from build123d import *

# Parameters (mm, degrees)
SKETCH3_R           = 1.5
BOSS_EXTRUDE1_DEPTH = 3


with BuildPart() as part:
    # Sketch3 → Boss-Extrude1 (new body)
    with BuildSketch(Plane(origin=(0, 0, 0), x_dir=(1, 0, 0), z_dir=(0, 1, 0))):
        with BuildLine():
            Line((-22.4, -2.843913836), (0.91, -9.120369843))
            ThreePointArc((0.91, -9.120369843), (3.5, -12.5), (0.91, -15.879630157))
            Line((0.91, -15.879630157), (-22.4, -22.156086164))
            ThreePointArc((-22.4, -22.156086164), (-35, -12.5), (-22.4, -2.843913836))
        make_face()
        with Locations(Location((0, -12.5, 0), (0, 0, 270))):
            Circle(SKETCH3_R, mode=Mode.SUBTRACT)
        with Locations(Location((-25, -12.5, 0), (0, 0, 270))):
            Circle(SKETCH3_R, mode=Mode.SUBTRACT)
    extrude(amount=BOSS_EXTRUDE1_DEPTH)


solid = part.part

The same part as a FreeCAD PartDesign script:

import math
import FreeCAD as App
import Part
import Sketcher
Q = App.Units.Quantity

doc = App.newDocument("Part")
body = doc.addObject("PartDesign::Body", "Body")

# Sketch on XZ plane
sketch1 = doc.addObject("Sketcher::SketchObject", "Sketch")
body.addObject(sketch1)
sketch1.AttachmentSupport = (doc.XZ_Plane, [""])
sketch1.MapMode = "FlatFace"
sketch1.addGeometry([
    Part.LineSegment(App.Vector(0.9, 9.1, 0), App.Vector(-22.4, 2.8, 0)),  # 0
    Part.ArcOfCircle(Part.Circle(App.Vector(-25, 12.5, 0), App.Vector(0, 0, 1), 10), math.radians(75), math.radians(285)),  # 1
    Part.LineSegment(App.Vector(-22.4, 22.2, 0), App.Vector(0.9, 15.9, 0)),  # 2
    Part.ArcOfCircle(Part.Circle(App.Vector(0, 12.5, 0), App.Vector(0, 0, 1), 3.5), math.radians(-75), math.radians(75)),  # 3
    Part.Circle(App.Vector(0, 12.5, 0), App.Vector(0, 0, 1), 1.5),  # 4
    Part.Circle(App.Vector(-25, 12.5, 0), App.Vector(0, 0, 1), 1.5),  # 5
], False)
sketch1.addConstraint([
    Sketcher.Constraint("Tangent", 0, 2, 1, 2),
    Sketcher.Constraint("Tangent", 1, 1, 2, 1),
    Sketcher.Constraint("Tangent", 2, 2, 3, 2),
    Sketcher.Constraint("Tangent", 3, 1, 0, 1),
    Sketcher.Constraint("Coincident", 4, 3, 3, 3),
    Sketcher.Constraint("Coincident", 5, 3, 1, 3),
    Sketcher.Constraint("Equal", 4, 5),
    Sketcher.Constraint("PointOnObject", 3, 3, -2),
    Sketcher.Constraint("Horizontal", 1, 3, 3, 3),
    Sketcher.Constraint("Diameter", 4, Q("3 mm")),
    Sketcher.Constraint("Radius", 1, Q("10 mm")),
    Sketcher.Constraint("Radius", 3, Q("3.5 mm")),
    Sketcher.Constraint("DistanceX", 1, 3, -1, 1, Q("25 mm")),
    Sketcher.Constraint("DistanceY", -1, 1, 1, 3, Q("12.5 mm")),
])
pad1 = doc.addObject("PartDesign::Pad", "Pad")
body.addObject(pad1)
pad1.Profile = sketch1
pad1.Length = 3
pad1.Reversed = True

doc.recompute()
